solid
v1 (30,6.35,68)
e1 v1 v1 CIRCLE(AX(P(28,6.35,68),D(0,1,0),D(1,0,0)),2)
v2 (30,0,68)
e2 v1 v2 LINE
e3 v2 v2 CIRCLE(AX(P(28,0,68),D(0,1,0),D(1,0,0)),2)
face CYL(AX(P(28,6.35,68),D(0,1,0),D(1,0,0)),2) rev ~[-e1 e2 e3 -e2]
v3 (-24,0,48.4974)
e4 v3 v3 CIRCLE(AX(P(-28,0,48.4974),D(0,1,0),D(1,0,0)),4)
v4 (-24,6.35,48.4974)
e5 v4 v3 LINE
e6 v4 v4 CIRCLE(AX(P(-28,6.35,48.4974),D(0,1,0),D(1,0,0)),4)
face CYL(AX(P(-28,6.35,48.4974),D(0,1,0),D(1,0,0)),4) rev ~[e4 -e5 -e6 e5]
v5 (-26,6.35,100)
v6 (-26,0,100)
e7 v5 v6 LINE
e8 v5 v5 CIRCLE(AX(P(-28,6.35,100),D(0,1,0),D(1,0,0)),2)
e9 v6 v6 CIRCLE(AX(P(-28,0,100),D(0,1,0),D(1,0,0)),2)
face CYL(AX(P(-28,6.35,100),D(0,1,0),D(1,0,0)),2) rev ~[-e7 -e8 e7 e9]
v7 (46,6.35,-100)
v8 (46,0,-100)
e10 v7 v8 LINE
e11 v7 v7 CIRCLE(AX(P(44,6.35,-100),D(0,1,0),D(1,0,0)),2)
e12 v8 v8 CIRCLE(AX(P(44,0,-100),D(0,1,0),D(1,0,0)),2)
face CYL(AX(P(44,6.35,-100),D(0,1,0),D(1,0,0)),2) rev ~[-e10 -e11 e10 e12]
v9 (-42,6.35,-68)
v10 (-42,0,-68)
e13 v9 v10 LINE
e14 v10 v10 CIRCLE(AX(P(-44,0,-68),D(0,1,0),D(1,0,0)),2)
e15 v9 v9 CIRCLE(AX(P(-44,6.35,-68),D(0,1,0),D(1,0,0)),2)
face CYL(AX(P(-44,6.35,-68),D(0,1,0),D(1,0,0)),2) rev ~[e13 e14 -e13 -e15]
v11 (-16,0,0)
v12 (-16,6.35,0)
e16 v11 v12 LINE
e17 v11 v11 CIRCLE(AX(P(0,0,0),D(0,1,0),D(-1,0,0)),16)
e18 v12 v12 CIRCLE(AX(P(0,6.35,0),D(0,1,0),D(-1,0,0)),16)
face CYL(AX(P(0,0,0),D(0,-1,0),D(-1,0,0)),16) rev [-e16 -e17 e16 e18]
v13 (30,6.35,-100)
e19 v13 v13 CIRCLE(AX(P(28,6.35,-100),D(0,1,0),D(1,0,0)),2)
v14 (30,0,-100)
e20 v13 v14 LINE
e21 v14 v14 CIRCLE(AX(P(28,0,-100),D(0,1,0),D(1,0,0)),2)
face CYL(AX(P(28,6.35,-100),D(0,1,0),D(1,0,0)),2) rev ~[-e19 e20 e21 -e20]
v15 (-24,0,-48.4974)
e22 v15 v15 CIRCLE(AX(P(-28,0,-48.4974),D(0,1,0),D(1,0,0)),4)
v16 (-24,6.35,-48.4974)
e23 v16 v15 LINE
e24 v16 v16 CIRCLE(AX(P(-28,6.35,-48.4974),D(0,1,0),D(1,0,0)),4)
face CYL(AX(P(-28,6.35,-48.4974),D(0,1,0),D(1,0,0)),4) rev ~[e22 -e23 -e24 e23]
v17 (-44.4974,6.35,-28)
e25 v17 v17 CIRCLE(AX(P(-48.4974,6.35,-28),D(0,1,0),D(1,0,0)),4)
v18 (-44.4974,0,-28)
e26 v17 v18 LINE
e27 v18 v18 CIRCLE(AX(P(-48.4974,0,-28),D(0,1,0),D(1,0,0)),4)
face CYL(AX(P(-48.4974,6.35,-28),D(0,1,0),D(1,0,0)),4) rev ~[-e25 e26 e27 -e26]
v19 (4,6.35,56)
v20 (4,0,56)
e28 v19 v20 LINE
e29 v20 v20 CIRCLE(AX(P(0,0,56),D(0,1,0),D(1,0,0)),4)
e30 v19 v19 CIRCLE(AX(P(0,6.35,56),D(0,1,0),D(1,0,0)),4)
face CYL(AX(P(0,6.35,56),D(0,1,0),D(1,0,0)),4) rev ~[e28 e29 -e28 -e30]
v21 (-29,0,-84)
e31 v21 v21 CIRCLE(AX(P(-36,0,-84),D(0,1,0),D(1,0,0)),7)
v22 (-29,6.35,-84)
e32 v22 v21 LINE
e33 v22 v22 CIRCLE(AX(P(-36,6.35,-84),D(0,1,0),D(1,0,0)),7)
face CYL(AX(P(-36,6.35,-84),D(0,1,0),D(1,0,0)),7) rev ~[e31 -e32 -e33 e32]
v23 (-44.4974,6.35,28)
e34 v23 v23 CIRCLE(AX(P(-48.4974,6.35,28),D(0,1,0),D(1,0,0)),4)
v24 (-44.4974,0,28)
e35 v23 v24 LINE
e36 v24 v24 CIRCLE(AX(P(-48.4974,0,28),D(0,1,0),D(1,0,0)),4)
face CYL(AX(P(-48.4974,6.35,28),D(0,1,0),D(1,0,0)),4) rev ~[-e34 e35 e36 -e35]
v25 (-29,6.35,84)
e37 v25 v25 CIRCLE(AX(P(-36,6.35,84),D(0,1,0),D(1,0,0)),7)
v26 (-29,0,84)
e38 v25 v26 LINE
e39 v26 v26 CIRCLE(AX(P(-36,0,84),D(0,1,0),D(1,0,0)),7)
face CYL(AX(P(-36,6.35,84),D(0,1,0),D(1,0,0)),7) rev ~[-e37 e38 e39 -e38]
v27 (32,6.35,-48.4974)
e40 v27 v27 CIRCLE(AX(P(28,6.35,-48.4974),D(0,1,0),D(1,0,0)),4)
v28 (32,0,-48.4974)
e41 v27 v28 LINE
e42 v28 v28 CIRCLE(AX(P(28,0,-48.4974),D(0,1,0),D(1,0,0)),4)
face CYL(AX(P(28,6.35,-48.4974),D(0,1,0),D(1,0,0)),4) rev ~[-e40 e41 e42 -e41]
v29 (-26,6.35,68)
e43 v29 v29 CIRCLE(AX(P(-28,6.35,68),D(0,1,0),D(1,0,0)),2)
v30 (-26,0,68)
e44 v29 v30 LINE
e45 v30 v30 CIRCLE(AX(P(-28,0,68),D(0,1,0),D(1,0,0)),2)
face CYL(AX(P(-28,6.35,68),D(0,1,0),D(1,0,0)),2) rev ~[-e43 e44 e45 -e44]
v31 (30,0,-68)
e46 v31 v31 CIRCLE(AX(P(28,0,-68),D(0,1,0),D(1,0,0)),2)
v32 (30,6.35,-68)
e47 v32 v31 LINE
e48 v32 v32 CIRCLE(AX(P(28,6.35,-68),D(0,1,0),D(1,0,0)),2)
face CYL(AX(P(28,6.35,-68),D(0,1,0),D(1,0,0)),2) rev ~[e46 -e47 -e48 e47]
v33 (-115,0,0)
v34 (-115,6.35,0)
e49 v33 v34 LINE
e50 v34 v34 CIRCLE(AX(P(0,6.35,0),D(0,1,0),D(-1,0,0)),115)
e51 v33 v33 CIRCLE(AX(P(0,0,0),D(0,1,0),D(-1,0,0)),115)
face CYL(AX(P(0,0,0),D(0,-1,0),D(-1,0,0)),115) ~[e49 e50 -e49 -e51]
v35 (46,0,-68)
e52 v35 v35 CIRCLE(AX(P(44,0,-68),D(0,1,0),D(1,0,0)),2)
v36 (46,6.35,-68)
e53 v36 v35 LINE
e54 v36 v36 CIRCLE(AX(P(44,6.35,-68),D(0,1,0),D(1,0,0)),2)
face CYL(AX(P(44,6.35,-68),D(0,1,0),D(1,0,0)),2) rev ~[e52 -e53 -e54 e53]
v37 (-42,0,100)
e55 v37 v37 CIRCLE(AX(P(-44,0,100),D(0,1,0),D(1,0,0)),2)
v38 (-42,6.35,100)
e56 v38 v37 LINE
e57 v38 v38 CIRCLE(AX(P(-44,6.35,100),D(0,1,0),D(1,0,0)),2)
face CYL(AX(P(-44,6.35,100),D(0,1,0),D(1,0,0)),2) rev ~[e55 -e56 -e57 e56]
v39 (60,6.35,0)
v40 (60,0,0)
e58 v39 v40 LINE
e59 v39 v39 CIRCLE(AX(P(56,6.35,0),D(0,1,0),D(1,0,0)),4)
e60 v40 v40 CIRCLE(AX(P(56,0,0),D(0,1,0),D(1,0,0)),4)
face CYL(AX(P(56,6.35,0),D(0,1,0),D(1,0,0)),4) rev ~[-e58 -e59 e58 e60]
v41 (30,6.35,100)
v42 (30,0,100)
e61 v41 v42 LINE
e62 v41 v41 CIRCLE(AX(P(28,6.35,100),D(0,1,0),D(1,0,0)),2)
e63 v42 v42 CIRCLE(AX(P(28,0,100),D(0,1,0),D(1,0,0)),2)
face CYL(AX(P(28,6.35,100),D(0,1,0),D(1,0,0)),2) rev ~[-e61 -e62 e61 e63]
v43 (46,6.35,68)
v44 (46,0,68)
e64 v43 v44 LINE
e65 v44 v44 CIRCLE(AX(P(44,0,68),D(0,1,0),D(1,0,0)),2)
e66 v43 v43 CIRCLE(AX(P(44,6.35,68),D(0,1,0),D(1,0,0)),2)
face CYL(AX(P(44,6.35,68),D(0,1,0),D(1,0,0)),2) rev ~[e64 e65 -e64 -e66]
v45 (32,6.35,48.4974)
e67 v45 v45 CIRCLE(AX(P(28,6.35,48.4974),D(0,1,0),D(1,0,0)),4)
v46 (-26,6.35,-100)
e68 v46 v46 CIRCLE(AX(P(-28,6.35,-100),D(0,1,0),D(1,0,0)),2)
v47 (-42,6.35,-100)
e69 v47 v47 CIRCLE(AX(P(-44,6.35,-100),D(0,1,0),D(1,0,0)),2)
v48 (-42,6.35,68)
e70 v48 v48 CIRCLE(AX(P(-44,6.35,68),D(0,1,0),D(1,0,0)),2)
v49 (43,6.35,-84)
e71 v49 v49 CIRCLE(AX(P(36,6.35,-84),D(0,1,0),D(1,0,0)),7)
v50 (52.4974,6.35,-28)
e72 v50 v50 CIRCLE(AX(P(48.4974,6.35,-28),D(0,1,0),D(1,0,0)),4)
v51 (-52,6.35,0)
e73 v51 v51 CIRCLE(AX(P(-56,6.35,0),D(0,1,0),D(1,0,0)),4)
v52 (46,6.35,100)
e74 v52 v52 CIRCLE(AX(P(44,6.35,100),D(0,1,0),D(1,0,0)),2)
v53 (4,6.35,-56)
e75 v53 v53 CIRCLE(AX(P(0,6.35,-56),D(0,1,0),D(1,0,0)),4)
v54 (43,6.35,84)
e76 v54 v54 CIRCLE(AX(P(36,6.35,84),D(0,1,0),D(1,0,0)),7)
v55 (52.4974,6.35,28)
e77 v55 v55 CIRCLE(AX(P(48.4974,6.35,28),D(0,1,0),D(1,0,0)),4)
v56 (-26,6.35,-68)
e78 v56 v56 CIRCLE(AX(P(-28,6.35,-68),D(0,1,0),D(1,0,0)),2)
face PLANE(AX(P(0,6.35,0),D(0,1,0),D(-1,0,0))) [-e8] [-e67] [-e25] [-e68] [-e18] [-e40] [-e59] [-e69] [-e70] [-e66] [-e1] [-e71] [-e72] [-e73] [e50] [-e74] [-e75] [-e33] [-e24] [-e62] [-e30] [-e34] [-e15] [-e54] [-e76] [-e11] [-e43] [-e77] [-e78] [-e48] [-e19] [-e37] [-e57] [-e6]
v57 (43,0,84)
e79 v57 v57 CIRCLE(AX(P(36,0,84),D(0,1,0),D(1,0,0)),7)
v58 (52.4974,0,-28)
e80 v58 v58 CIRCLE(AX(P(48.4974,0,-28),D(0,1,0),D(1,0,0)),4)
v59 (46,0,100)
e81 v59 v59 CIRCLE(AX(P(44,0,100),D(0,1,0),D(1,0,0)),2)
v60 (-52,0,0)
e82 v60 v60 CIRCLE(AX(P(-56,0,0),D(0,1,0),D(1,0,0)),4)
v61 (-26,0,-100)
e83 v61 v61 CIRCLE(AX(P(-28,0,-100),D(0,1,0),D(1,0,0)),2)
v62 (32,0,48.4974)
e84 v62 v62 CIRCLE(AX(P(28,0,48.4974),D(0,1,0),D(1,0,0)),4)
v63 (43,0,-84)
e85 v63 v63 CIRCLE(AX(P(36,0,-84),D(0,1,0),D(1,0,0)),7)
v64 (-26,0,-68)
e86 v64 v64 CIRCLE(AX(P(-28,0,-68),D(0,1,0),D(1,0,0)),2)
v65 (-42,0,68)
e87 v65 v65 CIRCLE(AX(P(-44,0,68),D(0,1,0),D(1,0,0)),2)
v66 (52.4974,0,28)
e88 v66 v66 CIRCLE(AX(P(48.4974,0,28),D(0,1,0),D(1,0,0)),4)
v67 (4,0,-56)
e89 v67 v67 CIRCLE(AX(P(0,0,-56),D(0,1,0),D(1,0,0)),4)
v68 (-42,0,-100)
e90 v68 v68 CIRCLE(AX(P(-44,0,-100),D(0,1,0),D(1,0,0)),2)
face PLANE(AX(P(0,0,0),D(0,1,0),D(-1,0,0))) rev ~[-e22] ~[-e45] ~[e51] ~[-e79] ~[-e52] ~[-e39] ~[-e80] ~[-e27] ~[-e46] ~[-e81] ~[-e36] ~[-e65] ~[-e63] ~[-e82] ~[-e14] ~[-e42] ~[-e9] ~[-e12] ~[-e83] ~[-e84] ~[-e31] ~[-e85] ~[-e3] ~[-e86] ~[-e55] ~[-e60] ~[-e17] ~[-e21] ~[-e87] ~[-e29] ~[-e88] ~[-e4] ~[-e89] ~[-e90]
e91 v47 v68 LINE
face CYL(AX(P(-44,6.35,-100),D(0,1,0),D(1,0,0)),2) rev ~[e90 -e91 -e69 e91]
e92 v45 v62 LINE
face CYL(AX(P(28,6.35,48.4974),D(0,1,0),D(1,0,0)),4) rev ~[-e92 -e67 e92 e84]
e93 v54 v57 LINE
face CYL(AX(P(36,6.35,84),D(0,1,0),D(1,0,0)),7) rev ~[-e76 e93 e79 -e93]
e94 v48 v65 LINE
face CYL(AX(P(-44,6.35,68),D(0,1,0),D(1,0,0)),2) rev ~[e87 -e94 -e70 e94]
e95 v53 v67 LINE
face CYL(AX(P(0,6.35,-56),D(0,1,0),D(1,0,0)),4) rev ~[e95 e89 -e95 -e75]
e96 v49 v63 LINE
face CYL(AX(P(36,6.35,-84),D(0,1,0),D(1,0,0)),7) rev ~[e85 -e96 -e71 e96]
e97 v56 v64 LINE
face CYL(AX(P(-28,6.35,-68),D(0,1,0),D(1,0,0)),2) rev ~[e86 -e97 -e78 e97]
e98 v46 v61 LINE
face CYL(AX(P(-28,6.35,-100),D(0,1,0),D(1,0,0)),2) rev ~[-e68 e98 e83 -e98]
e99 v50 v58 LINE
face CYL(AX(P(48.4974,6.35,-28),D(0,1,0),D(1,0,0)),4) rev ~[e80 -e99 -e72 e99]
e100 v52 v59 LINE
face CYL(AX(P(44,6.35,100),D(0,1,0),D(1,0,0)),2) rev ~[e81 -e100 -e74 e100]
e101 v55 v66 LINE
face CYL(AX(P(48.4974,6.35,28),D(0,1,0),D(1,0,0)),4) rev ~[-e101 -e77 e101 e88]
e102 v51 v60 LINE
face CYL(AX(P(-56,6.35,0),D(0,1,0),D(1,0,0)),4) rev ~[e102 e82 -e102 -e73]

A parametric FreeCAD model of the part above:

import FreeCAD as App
import Part
import Sketcher
from FreeCAD import Vector
Q = App.Units.Quantity

doc = App.newDocument("Part")
body = doc.addObject("PartDesign::Body", "Body")

sketch1 = body.newObject("Sketcher::SketchObject", "Sketch")
sketch1.AttachmentSupport = (doc.getObject("XZ_Plane"), [""])
sketch1.MapMode = "FlatFace"
sketch1.addGeometry([
    Part.Circle(Vector(0, 0, 0), Vector(0, 0, 1), 115),
    Part.Circle(Vector(0, 0, 0), Vector(0, 0, 1), 16),
], False)
sketch1.addConstraint([
    Sketcher.Constraint("Coincident", 0, 3, -1, 1),
    Sketcher.Constraint("Coincident", 1, 3, -1, 1),
    Sketcher.Constraint("Diameter", 0, Q("230 mm")),
    Sketcher.Constraint("Diameter", 1, Q("32 mm")),
])
pad1 = body.newObject("PartDesign::Pad", "Pad")
pad1.Profile = sketch1
pad1.Length = 6.35
pad1.Reversed = True

sketch2 = body.newObject("Sketcher::SketchObject", "Sketch001")
sketch2.AttachmentSupport = (doc.getObject("XZ_Plane"), [""])
sketch2.MapMode = "FlatFace"
sketch2.AttachmentOffset = App.Placement(Vector(0, 0, -6.35), App.Rotation())
sketch2.addGeometry([
    Part.Circle(Vector(0, -56, 0), Vector(0, 0, 1), 4),
    Part.Circle(Vector(-28, -48.5, 0), Vector(0, 0, 1), 4),
    Part.Circle(Vector(-48.5, -28, 0), Vector(0, 0, 1), 4),
    Part.Circle(Vector(-56, 0, 0), Vector(0, 0, 1), 4),
    Part.Circle(Vector(-48.5, 28, 0), Vector(0, 0, 1), 4),
    Part.Circle(Vector(-28, 48.5, 0), Vector(0, 0, 1), 4),
    Part.Circle(Vector(0, 56, 0), Vector(0, 0, 1), 4),
    Part.Circle(Vector(28, 48.5, 0), Vector(0, 0, 1), 4),
    Part.Circle(Vector(48.5, 28, 0), Vector(0, 0, 1), 4),
    Part.Circle(Vector(56, 0, 0), Vector(0, 0, 1), 4),
    Part.Circle(Vector(48.5, -28, 0), Vector(0, 0, 1), 4),
    Part.Circle(Vector(28, -48.5, 0), Vector(0, 0, 1), 4),
], False)
sketch2.addConstraint([
    Sketcher.Constraint("Equal", 0, 1),
    Sketcher.Constraint("Equal", 1, 2),
    Sketcher.Constraint("Equal", 2, 3),
    Sketcher.Constraint("Equal", 3, 4),
    Sketcher.Constraint("Equal", 4, 5),
    Sketcher.Constraint("Equal", 5, 6),
    Sketcher.Constraint("Equal", 6, 7),
    Sketcher.Constraint("Equal", 7, 8),
    Sketcher.Constraint("Equal", 8, 9),
    Sketcher.Constraint("Equal", 9, 10),
    Sketcher.Constraint("Equal", 10, 11),
    Sketcher.Constraint("Symmetric", 0, 3, 6, 3, -1, 1),
    Sketcher.Constraint("Symmetric", 1, 3, 7, 3, -1, 1),
    Sketcher.Constraint("Symmetric", 2, 3, 8, 3, -1, 1),
    Sketcher.Constraint("Symmetric", 3, 3, 9, 3, -1, 1),
    Sketcher.Constraint("Symmetric", 4, 3, 10, 3, -1, 1),
    Sketcher.Constraint("Symmetric", 5, 3, 11, 3, -1, 1),
    Sketcher.Constraint("Symmetric", 5, 3, 7, 3, -2),
    Sketcher.Constraint("Symmetric", 4, 3, 8, 3, -2),
    Sketcher.Constraint("PointOnObject", 0, 3, -2),
    Sketcher.Constraint("PointOnObject", 3, 3, -1),
    Sketcher.Constraint("Diameter", 0, Q("8 mm")),
    Sketcher.Constraint("DistanceY", 0, 3, -1, 1, Q("56 mm")),
    Sketcher.Constraint("DistanceX", 3, 3, -1, 1, Q("56 mm")),
    Sketcher.Constraint("DistanceY", 2, 3, 4, 3, Q("56 mm")),
    Sketcher.Constraint("DistanceX", 5, 3, 7, 3, Q("56 mm")),
    Sketcher.Constraint("DistanceY", 1, 3, -1, 1, Q("48.4974 mm")),
    Sketcher.Constraint("DistanceX", 2, 3, -1, 1, Q("48.4974 mm")),
])
pocket1 = body.newObject("PartDesign::Pocket", "Pocket")
pocket1.Profile = sketch2
pocket1.Type = "ThroughAll"
pocket1.Reversed = True

sketch3 = body.newObject("Sketcher::SketchObject", "Sketch002")
sketch3.AttachmentSupport = (doc.getObject("XZ_Plane"), [""])
sketch3.MapMode = "FlatFace"
sketch3.AttachmentOffset = App.Placement(Vector(0, 0, -6.35), App.Rotation())
sketch3.addGeometry([
    Part.Circle(Vector(-36, -84, 0), Vector(0, 0, 1), 7),
    Part.Circle(Vector(-44, -100, 0), Vector(0, 0, 1), 2),
    Part.Circle(Vector(-28, -100, 0), Vector(0, 0, 1), 2),
    Part.Circle(Vector(-44, -68, 0), Vector(0, 0, 1), 2),
    Part.Circle(Vector(-28, -68, 0), Vector(0, 0, 1), 2),
    Part.Circle(Vector(36, -84, 0), Vector(0, 0, 1), 7),
    Part.Circle(Vector(44, -100, 0), Vector(0, 0, 1), 2),
    Part.Circle(Vector(28, -100, 0), Vector(0, 0, 1), 2),
    Part.Circle(Vector(44, -68, 0), Vector(0, 0, 1), 2),
    Part.Circle(Vector(28, -68, 0), Vector(0, 0, 1), 2),
    Part.Circle(Vector(-36, 84, 0), Vector(0, 0, 1), 7),
    Part.Circle(Vector(-44, 100, 0), Vector(0, 0, 1), 2),
    Part.Circle(Vector(-28, 100, 0), Vector(0, 0, 1), 2),
    Part.Circle(Vector(-44, 68, 0), Vector(0, 0, 1), 2),
    Part.Circle(Vector(-28, 68, 0), Vector(0, 0, 1), 2),
    Part.Circle(Vector(36, 84, 0), Vector(0, 0, 1), 7),
    Part.Circle(Vector(44, 100, 0), Vector(0, 0, 1), 2),
    Part.Circle(Vector(28, 100, 0), Vector(0, 0, 1), 2),
    Part.Circle(Vector(28, 68, 0), Vector(0, 0, 1), 2),
    Part.Circle(Vector(44, 68, 0), Vector(0, 0, 1), 2),
], False)
sketch3.addConstraint([
    Sketcher.Constraint("Equal", 1, 2),
    Sketcher.Constraint("Equal", 2, 3),
    Sketcher.Constraint("Equal", 3, 4),
    Sketcher.Constraint("Equal", 0, 5),
    Sketcher.Constraint("Equal", 4, 6),
    Sketcher.Constraint("Equal", 6, 7),
    Sketcher.Constraint("Equal", 7, 8),
    Sketcher.Constraint("Equal", 8, 9),
    Sketcher.Constraint("Equal", 5, 10),
    Sketcher.Constraint("Equal", 9, 11),
    Sketcher.Constraint("Equal", 11, 12),
    Sketcher.Constraint("Equal", 12, 13),
    Sketcher.Constraint("Equal", 13, 14),
    Sketcher.Constraint("Equal", 10, 15),
    Sketcher.Constraint("Equal", 14, 16),
    Sketcher.Constraint("Equal", 16, 17),
    Sketcher.Constraint("Equal", 17, 18),
    Sketcher.Constraint("Equal", 18, 19),
    Sketcher.Constraint("Symmetric", 5, 3, 10, 3, -1, 1),
    Sketcher.Constraint("Symmetric", 6, 3, 11, 3, -1, 1),
    Sketcher.Constraint("Symmetric", 7, 3, 12, 3, -1, 1),
    Sketcher.Constraint("Symmetric", 8, 3, 13, 3, -1, 1),
    Sketcher.Constraint("Symmetric", 9, 3, 14, 3, -1, 1),
    Sketcher.Constraint("Symmetric", 0, 3, 15, 3, -1, 1),
    Sketcher.Constraint("Symmetric", 1, 3, 16, 3, -1, 1),
    Sketcher.Constraint("Symmetric", 2, 3, 17, 3, -1, 1),
    Sketcher.Constraint("Symmetric", 4, 3, 18, 3, -1, 1),
    Sketcher.Constraint("Symmetric", 3, 3, 19, 3, -1, 1),
    Sketcher.Constraint("Symmetric", 0, 3, 5, 3, -2),
    Sketcher.Constraint("Symmetric", 1, 3, 6, 3, -2),
    Sketcher.Constraint("Symmetric", 2, 3, 7, 3, -2),
    Sketcher.Constraint("Symmetric", 3, 3, 8, 3, -2),
    Sketcher.Constraint("Symmetric", 4, 3, 9, 3, -2),
    Sketcher.Constraint("Horizontal", 1, 3, 2, 3),
    Sketcher.Constraint("Horizontal", 3, 3, 4, 3),
    Sketcher.Constraint("Vertical", 1, 3, 3, 3),
    Sketcher.Constraint("Vertical", 2, 3, 4, 3),
    Sketcher.Constraint("Diameter", 0, Q("14 mm")),
    Sketcher.Constraint("Diameter", 1, Q("4 mm")),
    Sketcher.Constraint("DistanceX", 0, 3, -1, 1, Q("36 mm")),
    Sketcher.Constraint("DistanceY", 0, 3, -1, 1, Q("84 mm")),
    Sketcher.Constraint("DistanceX", 1, 3, 0, 3, Q("8 mm")),
    Sketcher.Constraint("DistanceY", 1, 3, 0, 3, Q("16 mm")),
    Sketcher.Constraint("DistanceX", 1, 3, 2, 3, Q("16 mm")),
    Sketcher.Constraint("DistanceY", 0, 3, 3, 3, Q("16 mm")),
])
pocket2 = body.newObject("PartDesign::Pocket", "Pocket001")
pocket2.Profile = sketch3
pocket2.Type = "ThroughAll"
pocket2.Reversed = True

doc.recompute()
